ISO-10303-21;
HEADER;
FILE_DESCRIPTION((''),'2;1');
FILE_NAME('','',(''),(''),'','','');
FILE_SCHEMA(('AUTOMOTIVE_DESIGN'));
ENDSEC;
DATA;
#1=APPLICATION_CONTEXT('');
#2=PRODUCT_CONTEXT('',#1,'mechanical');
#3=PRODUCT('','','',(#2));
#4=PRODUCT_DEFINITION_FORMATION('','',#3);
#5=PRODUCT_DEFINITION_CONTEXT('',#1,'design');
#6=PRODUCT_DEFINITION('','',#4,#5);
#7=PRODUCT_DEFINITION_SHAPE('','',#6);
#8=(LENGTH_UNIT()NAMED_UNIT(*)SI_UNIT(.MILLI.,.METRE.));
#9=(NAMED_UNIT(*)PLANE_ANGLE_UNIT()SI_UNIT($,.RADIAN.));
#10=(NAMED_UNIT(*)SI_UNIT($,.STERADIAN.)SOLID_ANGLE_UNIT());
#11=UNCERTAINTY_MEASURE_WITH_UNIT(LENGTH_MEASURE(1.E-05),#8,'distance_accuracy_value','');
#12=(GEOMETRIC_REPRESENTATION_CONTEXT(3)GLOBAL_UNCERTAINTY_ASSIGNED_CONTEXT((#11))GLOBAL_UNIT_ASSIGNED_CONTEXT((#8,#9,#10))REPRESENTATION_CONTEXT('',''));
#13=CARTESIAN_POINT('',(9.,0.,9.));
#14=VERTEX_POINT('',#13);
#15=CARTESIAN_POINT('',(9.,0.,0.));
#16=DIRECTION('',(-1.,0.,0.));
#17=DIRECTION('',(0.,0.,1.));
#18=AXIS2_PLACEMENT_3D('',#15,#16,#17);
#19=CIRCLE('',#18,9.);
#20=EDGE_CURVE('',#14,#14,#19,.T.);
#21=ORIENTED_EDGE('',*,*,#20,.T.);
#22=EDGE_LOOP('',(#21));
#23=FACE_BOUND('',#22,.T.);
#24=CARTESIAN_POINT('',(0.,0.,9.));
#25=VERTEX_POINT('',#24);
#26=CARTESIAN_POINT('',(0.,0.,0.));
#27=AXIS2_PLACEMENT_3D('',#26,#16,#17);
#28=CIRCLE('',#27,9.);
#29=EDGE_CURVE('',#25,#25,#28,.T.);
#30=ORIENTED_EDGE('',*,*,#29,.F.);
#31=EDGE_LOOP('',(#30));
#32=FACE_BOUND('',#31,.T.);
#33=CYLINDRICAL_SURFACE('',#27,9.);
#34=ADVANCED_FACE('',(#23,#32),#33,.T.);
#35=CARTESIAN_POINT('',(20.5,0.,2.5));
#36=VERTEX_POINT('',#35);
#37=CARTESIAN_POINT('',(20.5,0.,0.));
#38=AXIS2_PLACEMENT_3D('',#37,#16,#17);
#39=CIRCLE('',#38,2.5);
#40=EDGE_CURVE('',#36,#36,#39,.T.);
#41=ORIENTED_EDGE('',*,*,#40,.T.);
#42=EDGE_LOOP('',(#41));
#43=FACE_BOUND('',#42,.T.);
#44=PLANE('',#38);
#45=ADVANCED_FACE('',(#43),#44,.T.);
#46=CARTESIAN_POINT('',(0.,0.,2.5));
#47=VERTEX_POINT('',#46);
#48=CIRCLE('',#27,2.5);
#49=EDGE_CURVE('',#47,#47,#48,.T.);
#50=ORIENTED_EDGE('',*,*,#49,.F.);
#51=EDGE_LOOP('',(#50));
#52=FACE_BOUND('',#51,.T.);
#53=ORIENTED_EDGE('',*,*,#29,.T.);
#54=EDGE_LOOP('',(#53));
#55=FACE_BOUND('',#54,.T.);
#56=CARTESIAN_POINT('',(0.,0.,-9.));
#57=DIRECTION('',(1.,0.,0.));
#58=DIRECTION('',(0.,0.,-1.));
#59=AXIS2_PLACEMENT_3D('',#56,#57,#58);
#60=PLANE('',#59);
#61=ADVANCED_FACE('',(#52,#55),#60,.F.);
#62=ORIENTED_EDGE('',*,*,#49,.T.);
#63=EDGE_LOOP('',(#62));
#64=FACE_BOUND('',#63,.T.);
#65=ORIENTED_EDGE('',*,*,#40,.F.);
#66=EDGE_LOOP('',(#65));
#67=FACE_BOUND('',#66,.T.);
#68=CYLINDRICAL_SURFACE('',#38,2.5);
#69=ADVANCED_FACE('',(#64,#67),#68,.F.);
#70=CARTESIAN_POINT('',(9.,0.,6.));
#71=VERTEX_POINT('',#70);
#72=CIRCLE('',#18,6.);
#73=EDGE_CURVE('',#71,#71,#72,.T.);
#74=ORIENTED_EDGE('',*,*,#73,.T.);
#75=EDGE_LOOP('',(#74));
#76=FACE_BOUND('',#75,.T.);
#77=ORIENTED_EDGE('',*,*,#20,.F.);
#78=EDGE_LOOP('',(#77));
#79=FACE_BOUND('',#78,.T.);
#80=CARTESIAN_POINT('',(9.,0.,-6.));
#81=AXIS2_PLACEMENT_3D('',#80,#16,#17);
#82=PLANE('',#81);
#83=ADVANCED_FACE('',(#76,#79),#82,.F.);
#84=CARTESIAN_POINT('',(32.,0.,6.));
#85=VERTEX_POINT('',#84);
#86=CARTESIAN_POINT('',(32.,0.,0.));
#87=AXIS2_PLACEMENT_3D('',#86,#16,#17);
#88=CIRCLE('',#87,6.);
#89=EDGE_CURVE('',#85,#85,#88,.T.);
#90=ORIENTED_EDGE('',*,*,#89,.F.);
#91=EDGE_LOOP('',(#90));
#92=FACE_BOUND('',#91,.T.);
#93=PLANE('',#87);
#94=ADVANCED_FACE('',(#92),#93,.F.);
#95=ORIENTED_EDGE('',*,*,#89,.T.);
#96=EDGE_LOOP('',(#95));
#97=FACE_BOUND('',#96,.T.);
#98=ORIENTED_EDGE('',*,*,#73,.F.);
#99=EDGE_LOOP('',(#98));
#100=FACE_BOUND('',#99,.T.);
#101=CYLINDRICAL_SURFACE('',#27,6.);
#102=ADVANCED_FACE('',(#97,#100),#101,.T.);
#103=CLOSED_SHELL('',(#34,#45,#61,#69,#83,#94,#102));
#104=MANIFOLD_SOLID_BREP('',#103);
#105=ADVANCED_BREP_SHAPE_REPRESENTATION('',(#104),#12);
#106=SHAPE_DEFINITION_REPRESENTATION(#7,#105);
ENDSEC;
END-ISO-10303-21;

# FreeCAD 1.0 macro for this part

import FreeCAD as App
import Part
import Sketcher
from FreeCAD import Vector
Q = App.Units.Quantity

doc = App.newDocument("Part")
body = doc.addObject("PartDesign::Body", "Body")

# Sketch on XZ plane
sketch1 = body.newObject("Sketcher::SketchObject", "Sketch")
sketch1.AttachmentSupport = (doc.getObject("XZ_Plane"), [""])
sketch1.MapMode = "FlatFace"
sketch1.addGeometry([
    Part.LineSegment(Vector(0, 0, 0), Vector(32, 0, 0)),  # 0
    Part.LineSegment(Vector(32, 0, 0), Vector(32, -6, 0)),  # 1
    Part.LineSegment(Vector(32, -6, 0), Vector(9, -6, 0)),  # 2
    Part.LineSegment(Vector(9, -6, 0), Vector(9, -9, 0)),  # 3
    Part.LineSegment(Vector(9, -9, 0), Vector(0, -9, 0)),  # 4
    Part.LineSegment(Vector(0, -9, 0), Vector(0, 0, 0)),  # 5
], False)
sketch1.addConstraint([
    Sketcher.Constraint("Coincident", 0, 2, 1, 1),
    Sketcher.Constraint("Coincident", 1, 2, 2, 1),
    Sketcher.Constraint("Coincident", 2, 2, 3, 1),
    Sketcher.Constraint("Coincident", 3, 2, 4, 1),
    Sketcher.Constraint("Coincident", 4, 2, 5, 1),
    Sketcher.Constraint("Coincident", 5, 2, 0, 1),
    Sketcher.Constraint("Horizontal", 0),
    Sketcher.Constraint("Vertical", 1),
    Sketcher.Constraint("Horizontal", 2),
    Sketcher.Constraint("Vertical", 3),
    Sketcher.Constraint("Horizontal", 4),
    Sketcher.Constraint("Vertical", 5),
    Sketcher.Constraint("Coincident", 5, 2, -1, 1),
    Sketcher.Constraint("Equal", 4, 5),
    Sketcher.Constraint("DistanceX", 0, 1, 0, 2, Q("32 mm")),
    Sketcher.Constraint("DistanceX", 2, 2, 2, 1, Q("23 mm")),
    Sketcher.Constraint("DistanceY", 1, 2, 1, 1, Q("6 mm")),
])
revolution = body.newObject("PartDesign::Revolution", "Revolution")
revolution.Profile = sketch1
revolution.ReferenceAxis = (sketch1, ["H_Axis"])
revolution.Angle = 360

# Sketch on YZ plane
sketch2 = body.newObject("Sketcher::SketchObject", "Sketch001")
sketch2.AttachmentSupport = (doc.getObject("YZ_Plane"), [""])
sketch2.MapMode = "FlatFace"
sketch2.addGeometry(Part.Circle(Vector(0, 0, 0), Vector(0, 0, 1), 2.5), False)
sketch2.addConstraint([
    Sketcher.Constraint("Coincident", 0, 3, -1, 1),
    Sketcher.Constraint("Diameter", 0, Q("5 mm")),
])
pocket1 = body.newObject("PartDesign::Pocket", "Pocket")
pocket1.Profile = sketch2
pocket1.Length = 20.5
pocket1.Reversed = True

doc.recompute()
